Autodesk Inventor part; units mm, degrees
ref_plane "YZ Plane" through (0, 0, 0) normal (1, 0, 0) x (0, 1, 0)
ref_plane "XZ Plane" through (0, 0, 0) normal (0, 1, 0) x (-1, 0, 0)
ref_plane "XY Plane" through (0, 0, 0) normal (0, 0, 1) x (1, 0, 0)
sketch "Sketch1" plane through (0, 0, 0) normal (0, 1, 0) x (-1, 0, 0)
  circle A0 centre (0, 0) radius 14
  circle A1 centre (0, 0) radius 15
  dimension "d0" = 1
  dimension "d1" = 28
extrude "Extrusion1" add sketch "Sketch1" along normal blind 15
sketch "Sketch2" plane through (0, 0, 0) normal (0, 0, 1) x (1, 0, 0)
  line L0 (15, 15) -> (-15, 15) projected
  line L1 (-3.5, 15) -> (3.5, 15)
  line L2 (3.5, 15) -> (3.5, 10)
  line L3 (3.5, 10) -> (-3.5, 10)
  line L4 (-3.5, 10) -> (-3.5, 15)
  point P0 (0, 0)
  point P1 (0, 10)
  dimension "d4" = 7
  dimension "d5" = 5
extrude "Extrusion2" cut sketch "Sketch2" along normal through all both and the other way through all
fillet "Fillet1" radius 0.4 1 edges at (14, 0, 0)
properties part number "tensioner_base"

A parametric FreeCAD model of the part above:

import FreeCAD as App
import Part
import Sketcher


def edges_at(feature, points):
    """Names of the edges that pass closest to the given points."""
    edges = feature.Shape.Edges
    near = lambda p: min(range(len(edges)), key=lambda i: edges[i].distToShape(Part.Vertex(*p))[0])
    return sorted({f"Edge{near(p) + 1}" for p in points})

doc = App.newDocument("Part")
body = doc.addObject("PartDesign::Body", "Body")

# Sketch on XZ plane
sketch1 = body.newObject("Sketcher::SketchObject", "Sketch")
sketch1.AttachmentSupport = (doc.getObject("XZ_Plane"), [""])
sketch1.MapMode = "FlatFace"
sketch1.addGeometry([
    Part.Circle(App.Vector(0, 0, 0), App.Vector(0, 0, 1), 15),
    Part.Circle(App.Vector(0, 0, 0), App.Vector(0, 0, 1), 14),
], False)
sketch1.addConstraint([
    Sketcher.Constraint("Coincident", 0, 3, -1, 1),
    Sketcher.Constraint("Coincident", 1, 3, -1, 1),
    Sketcher.Constraint("Diameter", 1, 28.0),
    Sketcher.Constraint("Diameter", 0, 30.0),
])
pad1 = body.newObject("PartDesign::Pad", "Pad")
pad1.Profile = sketch1
pad1.Length = 15
pad1.Reversed = True

# Sketch on XY plane
sketch2 = body.newObject("Sketcher::SketchObject", "Sketch001")
sketch2.AttachmentSupport = (doc.getObject("XY_Plane"), [""])
sketch2.MapMode = "FlatFace"
sketch2.addGeometry([
    Part.LineSegment(App.Vector(4, 10, 0), App.Vector(4, 15, 0)),
    Part.LineSegment(App.Vector(4, 15, 0), App.Vector(-4, 15, 0)),
    Part.LineSegment(App.Vector(-4, 15, 0), App.Vector(-4, 10, 0)),
    Part.LineSegment(App.Vector(-4, 10, 0), App.Vector(4, 10, 0)),
], False)
sketch2.addConstraint([
    Sketcher.Constraint("Coincident", 0, 2, 1, 1),
    Sketcher.Constraint("Coincident", 1, 2, 2, 1),
    Sketcher.Constraint("Coincident", 2, 2, 3, 1),
    Sketcher.Constraint("Coincident", 3, 2, 0, 1),
    Sketcher.Constraint("Vertical", 0),
    Sketcher.Constraint("Horizontal", 1),
    Sketcher.Constraint("Vertical", 2),
    Sketcher.Constraint("Horizontal", 3),
    Sketcher.Constraint("DistanceX", 1, 2, 1, 1, 7.0),
    Sketcher.Constraint("DistanceY", 0, 1, 0, 2, 5.0),
    Sketcher.Constraint("DistanceY", -1, 1, 0, 2, 15.0),
    Sketcher.Constraint("DistanceX", -1, 1, 0, 2, 3.5),
])
pocket1 = body.newObject("PartDesign::Pocket", "Pocket")
pocket1.Profile = sketch2
pocket1.Type = "ThroughAll"
pocket1.Midplane = True
doc.recompute()

fillet = body.newObject("PartDesign::Fillet", "Fillet")
fillet.Base = (pocket1, edges_at(pocket1, [(14, 0, 0)]))
fillet.Radius = 0.4

doc.recompute()
